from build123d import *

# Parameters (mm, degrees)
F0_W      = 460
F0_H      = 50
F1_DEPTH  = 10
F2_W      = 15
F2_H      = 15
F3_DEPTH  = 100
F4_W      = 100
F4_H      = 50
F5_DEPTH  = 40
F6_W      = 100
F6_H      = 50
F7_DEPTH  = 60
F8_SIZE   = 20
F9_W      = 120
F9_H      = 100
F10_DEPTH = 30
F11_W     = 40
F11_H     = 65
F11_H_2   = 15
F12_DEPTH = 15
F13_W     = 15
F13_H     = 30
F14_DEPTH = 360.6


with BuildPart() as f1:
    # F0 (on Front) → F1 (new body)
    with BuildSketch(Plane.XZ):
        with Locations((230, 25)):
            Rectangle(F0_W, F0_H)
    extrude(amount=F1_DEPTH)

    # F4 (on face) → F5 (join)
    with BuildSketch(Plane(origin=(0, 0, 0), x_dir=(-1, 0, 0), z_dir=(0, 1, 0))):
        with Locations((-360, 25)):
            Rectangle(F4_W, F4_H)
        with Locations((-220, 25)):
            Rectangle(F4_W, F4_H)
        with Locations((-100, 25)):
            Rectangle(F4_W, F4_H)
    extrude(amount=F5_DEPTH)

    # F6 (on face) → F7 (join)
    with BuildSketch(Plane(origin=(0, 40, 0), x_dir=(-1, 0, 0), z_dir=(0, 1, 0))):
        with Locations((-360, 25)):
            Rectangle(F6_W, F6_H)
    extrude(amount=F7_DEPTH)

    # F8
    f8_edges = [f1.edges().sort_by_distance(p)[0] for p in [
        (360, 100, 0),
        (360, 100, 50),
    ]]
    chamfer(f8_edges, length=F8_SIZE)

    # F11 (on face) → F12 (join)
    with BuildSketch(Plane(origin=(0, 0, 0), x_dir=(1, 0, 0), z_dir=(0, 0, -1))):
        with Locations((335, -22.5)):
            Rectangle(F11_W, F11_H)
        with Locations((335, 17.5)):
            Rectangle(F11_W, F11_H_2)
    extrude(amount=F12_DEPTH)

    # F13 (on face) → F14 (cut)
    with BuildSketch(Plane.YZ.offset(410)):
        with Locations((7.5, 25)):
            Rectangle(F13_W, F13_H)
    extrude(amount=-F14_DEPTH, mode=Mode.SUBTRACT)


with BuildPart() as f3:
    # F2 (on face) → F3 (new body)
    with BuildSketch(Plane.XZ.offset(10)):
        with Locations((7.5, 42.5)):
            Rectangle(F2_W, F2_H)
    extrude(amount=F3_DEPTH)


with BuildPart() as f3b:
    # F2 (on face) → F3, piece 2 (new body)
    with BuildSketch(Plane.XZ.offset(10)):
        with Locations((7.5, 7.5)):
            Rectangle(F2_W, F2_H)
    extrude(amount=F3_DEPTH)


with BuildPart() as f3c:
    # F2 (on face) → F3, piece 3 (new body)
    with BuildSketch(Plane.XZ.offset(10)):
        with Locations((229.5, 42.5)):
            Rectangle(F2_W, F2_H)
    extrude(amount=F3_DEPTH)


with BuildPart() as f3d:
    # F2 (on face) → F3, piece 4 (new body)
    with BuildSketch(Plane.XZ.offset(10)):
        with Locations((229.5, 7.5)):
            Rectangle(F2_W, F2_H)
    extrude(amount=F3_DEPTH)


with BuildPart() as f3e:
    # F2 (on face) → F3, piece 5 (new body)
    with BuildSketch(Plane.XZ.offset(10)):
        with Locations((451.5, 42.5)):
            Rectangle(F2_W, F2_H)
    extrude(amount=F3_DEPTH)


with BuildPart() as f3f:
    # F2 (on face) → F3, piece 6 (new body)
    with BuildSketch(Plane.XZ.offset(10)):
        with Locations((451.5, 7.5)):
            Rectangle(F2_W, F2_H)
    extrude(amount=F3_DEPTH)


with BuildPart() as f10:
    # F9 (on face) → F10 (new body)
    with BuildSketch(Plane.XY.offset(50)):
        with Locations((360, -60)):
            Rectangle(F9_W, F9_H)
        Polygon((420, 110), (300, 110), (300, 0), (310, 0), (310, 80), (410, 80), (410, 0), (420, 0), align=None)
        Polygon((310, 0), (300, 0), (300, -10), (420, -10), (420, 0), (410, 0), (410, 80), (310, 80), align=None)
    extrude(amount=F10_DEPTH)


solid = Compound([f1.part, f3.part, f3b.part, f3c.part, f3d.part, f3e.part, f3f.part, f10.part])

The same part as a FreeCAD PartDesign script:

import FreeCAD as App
import Part
import Sketcher
Q = App.Units.Quantity


def edges_at(feature, points):
    """Names of the edges that pass closest to the given points."""
    edges = feature.Shape.Edges
    near = lambda p: min(range(len(edges)), key=lambda i: edges[i].distToShape(Part.Vertex(*p))[0])
    return sorted({f"Edge{near(p) + 1}" for p in points})

doc = App.newDocument("Part")
body = doc.addObject("PartDesign::Body", "Body")

# Sketch on XZ plane
sketch1 = doc.addObject("Sketcher::SketchObject", "Sketch")
body.addObject(sketch1)
sketch1.AttachmentSupport = (doc.XZ_Plane, [""])
sketch1.MapMode = "FlatFace"
sketch1.addGeometry(Part.LineSegment(App.Vector(0, 50, 0), App.Vector(0, 0, 0)), False)
sketch1.addGeometry(Part.LineSegment(App.Vector(0, 0, 0), App.Vector(460, 0, 0)), False)
sketch1.addGeometry(Part.LineSegment(App.Vector(460, 0, 0), App.Vector(460, 50, 0)), False)
sketch1.addGeometry(Part.LineSegment(App.Vector(460, 50, 0), App.Vector(0, 50, 0)), False)
sketch1.addConstraint(Sketcher.Constraint("Coincident", 0, 2, 1, 1))
sketch1.addConstraint(Sketcher.Constraint("Coincident", 1, 2, 2, 1))
sketch1.addConstraint(Sketcher.Constraint("Coincident", 2, 2, 3, 1))
sketch1.addConstraint(Sketcher.Constraint("Coincident", 3, 2, 0, 1))
sketch1.addConstraint(Sketcher.Constraint("Vertical", 0))
sketch1.addConstraint(Sketcher.Constraint("Horizontal", 1))
sketch1.addConstraint(Sketcher.Constraint("Vertical", 2))
sketch1.addConstraint(Sketcher.Constraint("Horizontal", 3))
sketch1.addConstraint(Sketcher.Constraint("Coincident", 0, 2, -1, 1))
sketch1.addConstraint(Sketcher.Constraint("DistanceX", 1, 1, 1, 2, Q("460 mm")))
sketch1.addConstraint(Sketcher.Constraint("DistanceY", 0, 2, 0, 1, Q("50 mm")))
pad1 = doc.addObject("PartDesign::Pad", "Pad")
body.addObject(pad1)
pad1.Profile = sketch1
pad1.Length = 10

# Sketch on XZ plane
sketch2 = doc.addObject("Sketcher::SketchObject", "Sketch001")
body.addObject(sketch2)
sketch2.AttachmentSupport = (doc.XZ_Plane, [""])
sketch2.MapMode = "FlatFace"
sketch2.addGeometry(Part.LineSegment(App.Vector(410, 50, 0), App.Vector(410, 0, 0)), False)
sketch2.addGeometry(Part.LineSegment(App.Vector(410, 0, 0), App.Vector(310, 0, 0)), False)
sketch2.addGeometry(Part.LineSegment(App.Vector(310, 0, 0), App.Vector(310, 50, 0)), False)
sketch2.addGeometry(Part.LineSegment(App.Vector(310, 50, 0), App.Vector(410, 50, 0)), False)
sketch2.addGeometry(Part.LineSegment(App.Vector(270, 50, 0), App.Vector(270, 0, 0)), False)
sketch2.addGeometry(Part.LineSegment(App.Vector(270, 0, 0), App.Vector(170, 0, 0)), False)
sketch2.addGeometry(Part.LineSegment(App.Vector(170, 0, 0), App.Vector(170, 50, 0)), False)
sketch2.addGeometry(Part.LineSegment(App.Vector(170, 50, 0), App.Vector(270, 50, 0)), False)
sketch2.addGeometry(Part.LineSegment(App.Vector(150, 50, 0), App.Vector(150, 0, 0)), False)
sketch2.addGeometry(Part.LineSegment(App.Vector(150, 0, 0), App.Vector(50, 0, 0)), False)
sketch2.addGeometry(Part.LineSegment(App.Vector(50, 0, 0), App.Vector(50, 50, 0)), False)
sketch2.addGeometry(Part.LineSegment(App.Vector(50, 50, 0), App.Vector(150, 50, 0)), False)
sketch2.addConstraint(Sketcher.Constraint("Coincident", 0, 2, 1, 1))
sketch2.addConstraint(Sketcher.Constraint("Coincident", 1, 2, 2, 1))
sketch2.addConstraint(Sketcher.Constraint("Coincident", 2, 2, 3, 1))
sketch2.addConstraint(Sketcher.Constraint("Coincident", 3, 2, 0, 1))
sketch2.addConstraint(Sketcher.Constraint("Coincident", 4, 2, 5, 1))
sketch2.addConstraint(Sketcher.Constraint("Coincident", 5, 2, 6, 1))
sketch2.addConstraint(Sketcher.Constraint("Coincident", 6, 2, 7, 1))
sketch2.addConstraint(Sketcher.Constraint("Coincident", 7, 2, 4, 1))
sketch2.addConstraint(Sketcher.Constraint("Coincident", 8, 2, 9, 1))
sketch2.addConstraint(Sketcher.Constraint("Coincident", 9, 2, 10, 1))
sketch2.addConstraint(Sketcher.Constraint("Coincident", 10, 2, 11, 1))
sketch2.addConstraint(Sketcher.Constraint("Coincident", 11, 2, 8, 1))
sketch2.addConstraint(Sketcher.Constraint("Vertical", 0))
sketch2.addConstraint(Sketcher.Constraint("Horizontal", 1))
sketch2.addConstraint(Sketcher.Constraint("Vertical", 2))
sketch2.addConstraint(Sketcher.Constraint("Horizontal", 3))
sketch2.addConstraint(Sketcher.Constraint("Vertical", 4))
sketch2.addConstraint(Sketcher.Constraint("Horizontal", 5))
sketch2.addConstraint(Sketcher.Constraint("Vertical", 6))
sketch2.addConstraint(Sketcher.Constraint("Horizontal", 7))
sketch2.addConstraint(Sketcher.Constraint("Vertical", 8))
sketch2.addConstraint(Sketcher.Constraint("Horizontal", 9))
sketch2.addConstraint(Sketcher.Constraint("Vertical", 10))
sketch2.addConstraint(Sketcher.Constraint("Horizontal", 11))
sketch2.addConstraint(Sketcher.Constraint("PointOnObject", 0, 2, -1))
sketch2.addConstraint(Sketcher.Constraint("PointOnObject", 4, 2, -1))
sketch2.addConstraint(Sketcher.Constraint("PointOnObject", 8, 2, -1))
sketch2.addConstraint(Sketcher.Constraint("Horizontal", 3, 2, 6, 2))
sketch2.addConstraint(Sketcher.Constraint("Horizontal", 7, 2, 10, 2))
sketch2.addConstraint(Sketcher.Constraint("Equal", 3, 5))
sketch2.addConstraint(Sketcher.Constraint("Equal", 7, 9))
sketch2.addConstraint(Sketcher.Constraint("DistanceX", 1, 2, 1, 1, Q("100 mm")))
sketch2.addConstraint(Sketcher.Constraint("DistanceY", 0, 2, 0, 1, Q("50 mm")))
sketch2.addConstraint(Sketcher.Constraint("DistanceX", -1, 1, 0, 2, Q("410 mm")))
sketch2.addConstraint(Sketcher.Constraint("DistanceX", -1, 1, 4, 2, Q("270 mm")))
sketch2.addConstraint(Sketcher.Constraint("DistanceX", -1, 1, 8, 2, Q("150 mm")))
pad2 = doc.addObject("PartDesign::Pad", "Pad001")
body.addObject(pad2)
pad2.Profile = sketch2
pad2.Length = 40
pad2.Reversed = True

# Sketch on XZ plane
sketch3 = doc.addObject("Sketcher::SketchObject", "Sketch002")
body.addObject(sketch3)
sketch3.AttachmentSupport = (doc.XZ_Plane, [""])
sketch3.MapMode = "FlatFace"
sketch3.AttachmentOffset = App.Placement(App.Vector(0, 0, -40), App.Rotation())
sketch3.addGeometry(Part.LineSegment(App.Vector(410, 50, 0), App.Vector(410, 0, 0)), False)
sketch3.addGeometry(Part.LineSegment(App.Vector(410, 0, 0), App.Vector(310, 0, 0)), False)
sketch3.addGeometry(Part.LineSegment(App.Vector(310, 0, 0), App.Vector(310, 50, 0)), False)
sketch3.addGeometry(Part.LineSegment(App.Vector(310, 50, 0), App.Vector(410, 50, 0)), False)
sketch3.addConstraint(Sketcher.Constraint("Coincident", 0, 2, 1, 1))
sketch3.addConstraint(Sketcher.Constraint("Coincident", 1, 2, 2, 1))
sketch3.addConstraint(Sketcher.Constraint("Coincident", 2, 2, 3, 1))
sketch3.addConstraint(Sketcher.Constraint("Coincident", 3, 2, 0, 1))
sketch3.addConstraint(Sketcher.Constraint("Vertical", 0))
sketch3.addConstraint(Sketcher.Constraint("Horizontal", 1))
sketch3.addConstraint(Sketcher.Constraint("Vertical", 2))
sketch3.addConstraint(Sketcher.Constraint("Horizontal", 3))
sketch3.addConstraint(Sketcher.Constraint("PointOnObject", 0, 2, -1))
sketch3.addConstraint(Sketcher.Constraint("DistanceX", 1, 2, 1, 1, Q("100 mm")))
sketch3.addConstraint(Sketcher.Constraint("DistanceY", 0, 2, 0, 1, Q("50 mm")))
sketch3.addConstraint(Sketcher.Constraint("DistanceX", -1, 1, 0, 2, Q("410 mm")))
pad3 = doc.addObject("PartDesign::Pad", "Pad002")
body.addObject(pad3)
pad3.Profile = sketch3
pad3.Length = 60
pad3.Reversed = True
doc.recompute()

chamfer = doc.addObject("PartDesign::Chamfer", "Chamfer")
body.addObject(chamfer)
chamfer.Base = (pad3, edges_at(pad3, [(360, 100, 0), (360, 100, 50)]))
chamfer.Size = 20

# Sketch on XY plane
sketch4 = doc.addObject("Sketcher::SketchObject", "Sketch003")
body.addObject(sketch4)
sketch4.AttachmentSupport = (doc.XY_Plane, [""])
sketch4.MapMode = "FlatFace"
sketch4.addGeometry(Part.LineSegment(App.Vector(315, 55, 0), App.Vector(355, 55, 0)), False)
sketch4.addGeometry(Part.LineSegment(App.Vector(355, 55, 0), App.Vector(355, -25, 0)), False)
sketch4.addGeometry(Part.LineSegment(App.Vector(355, -25, 0), App.Vector(315, -25, 0)), False)
sketch4.addGeometry(Part.LineSegment(App.Vector(315, -25, 0), App.Vector(315, 55, 0)), False)
sketch4.addConstraint(Sketcher.Constraint("Coincident", 0, 2, 1, 1))
sketch4.addConstraint(Sketcher.Constraint("Coincident", 1, 2, 2, 1))
sketch4.addConstraint(Sketcher.Constraint("Coincident", 2, 2, 3, 1))
sketch4.addConstraint(Sketcher.Constraint("Coincident", 3, 2, 0, 1))
sketch4.addConstraint(Sketcher.Constraint("Horizontal", 0))
sketch4.addConstraint(Sketcher.Constraint("Vertical", 1))
sketch4.addConstraint(Sketcher.Constraint("Horizontal", 2))
sketch4.addConstraint(Sketcher.Constraint("Vertical", 3))
sketch4.addConstraint(Sketcher.Constraint("DistanceX", 0, 1, 0, 2, Q("40 mm")))
sketch4.addConstraint(Sketcher.Constraint("DistanceY", 1, 2, 1, 1, Q("80 mm")))
sketch4.addConstraint(Sketcher.Constraint("DistanceX", -1, 1, 0, 2, Q("355 mm")))
sketch4.addConstraint(Sketcher.Constraint("DistanceY", -1, 1, 0, 2, Q("55 mm")))
pad4 = doc.addObject("PartDesign::Pad", "Pad003")
body.addObject(pad4)
pad4.Profile = sketch4
pad4.Length = 15
pad4.Reversed = True

# Sketch on YZ plane
sketch5 = doc.addObject("Sketcher::SketchObject", "Sketch004")
body.addObject(sketch5)
sketch5.AttachmentSupport = (doc.YZ_Plane, [""])
sketch5.MapMode = "FlatFace"
sketch5.AttachmentOffset = App.Placement(App.Vector(0, 0, 410), App.Rotation())
sketch5.addGeometry(Part.LineSegment(App.Vector(0, 40, 0), App.Vector(0, 10, 0)), False)
sketch5.addGeometry(Part.LineSegment(App.Vector(0, 10, 0), App.Vector(15, 10, 0)), False)
sketch5.addGeometry(Part.LineSegment(App.Vector(15, 10, 0), App.Vector(15, 40, 0)), False)
sketch5.addGeometry(Part.LineSegment(App.Vector(15, 40, 0), App.Vector(0, 40, 0)), False)
sketch5.addConstraint(Sketcher.Constraint("Coincident", 0, 2, 1, 1))
sketch5.addConstraint(Sketcher.Constraint("Coincident", 1, 2, 2, 1))
sketch5.addConstraint(Sketcher.Constraint("Coincident", 2, 2, 3, 1))
sketch5.addConstraint(Sketcher.Constraint("Coincident", 3, 2, 0, 1))
sketch5.addConstraint(Sketcher.Constraint("Vertical", 0))
sketch5.addConstraint(Sketcher.Constraint("Horizontal", 1))
sketch5.addConstraint(Sketcher.Constraint("Vertical", 2))
sketch5.addConstraint(Sketcher.Constraint("Horizontal", 3))
sketch5.addConstraint(Sketcher.Constraint("PointOnObject", 0, 2, -2))
sketch5.addConstraint(Sketcher.Constraint("DistanceX", 1, 1, 1, 2, Q("15 mm")))
sketch5.addConstraint(Sketcher.Constraint("DistanceY", 0, 2, 0, 1, Q("30 mm")))
sketch5.addConstraint(Sketcher.Constraint("DistanceY", -1, 1, 0, 2, Q("10 mm")))
pocket1 = doc.addObject("PartDesign::Pocket", "Pocket")
body.addObject(pocket1)
pocket1.Profile = sketch5
pocket1.Length = 360.6
body2 = doc.addObject("PartDesign::Body", "Body001")

# Sketch on XZ plane
sketch6 = doc.addObject("Sketcher::SketchObject", "Sketch005")
body2.addObject(sketch6)
sketch6.AttachmentSupport = (doc.getObject("XZ_Plane001"), [""])
sketch6.MapMode = "FlatFace"
sketch6.AttachmentOffset = App.Placement(App.Vector(0, 0, 10), App.Rotation())
sketch6.addGeometry(Part.LineSegment(App.Vector(0, 50, 0), App.Vector(0, 35, 0)), False)
sketch6.addGeometry(Part.LineSegment(App.Vector(0, 35, 0), App.Vector(15, 35, 0)), False)
sketch6.addGeometry(Part.LineSegment(App.Vector(15, 35, 0), App.Vector(15, 50, 0)), False)
sketch6.addGeometry(Part.LineSegment(App.Vector(15, 50, 0), App.Vector(0, 50, 0)), False)
sketch6.addConstraint(Sketcher.Constraint("Coincident", 0, 2, 1, 1))
sketch6.addConstraint(Sketcher.Constraint("Coincident", 1, 2, 2, 1))
sketch6.addConstraint(Sketcher.Constraint("Coincident", 2, 2, 3, 1))
sketch6.addConstraint(Sketcher.Constraint("Coincident", 3, 2, 0, 1))
sketch6.addConstraint(Sketcher.Constraint("Vertical", 0))
sketch6.addConstraint(Sketcher.Constraint("Horizontal", 1))
sketch6.addConstraint(Sketcher.Constraint("Vertical", 2))
sketch6.addConstraint(Sketcher.Constraint("Horizontal", 3))
sketch6.addConstraint(Sketcher.Constraint("PointOnObject", 0, 2, -2))
sketch6.addConstraint(Sketcher.Constraint("Equal", 3, 0))
sketch6.addConstraint(Sketcher.Constraint("DistanceX", 1, 1, 1, 2, Q("15 mm")))
sketch6.addConstraint(Sketcher.Constraint("DistanceY", -1, 1, 0, 2, Q("35 mm")))
pad5 = doc.addObject("PartDesign::Pad", "Pad004")
body2.addObject(pad5)
pad5.Profile = sketch6
pad5.Length = 100
body3 = doc.addObject("PartDesign::Body", "Body002")

# Sketch on XZ plane
sketch7 = doc.addObject("Sketcher::SketchObject", "Sketch006")
body3.addObject(sketch7)
sketch7.AttachmentSupport = (doc.getObject("XZ_Plane002"), [""])
sketch7.MapMode = "FlatFace"
sketch7.AttachmentOffset = App.Placement(App.Vector(0, 0, 10), App.Rotation())
sketch7.addGeometry(Part.LineSegment(App.Vector(0, 15, 0), App.Vector(0, 0, 0)), False)
sketch7.addGeometry(Part.LineSegment(App.Vector(0, 0, 0), App.Vector(15, 0, 0)), False)
sketch7.addGeometry(Part.LineSegment(App.Vector(15, 0, 0), App.Vector(15, 15, 0)), False)
sketch7.addGeometry(Part.LineSegment(App.Vector(15, 15, 0), App.Vector(0, 15, 0)), False)
sketch7.addConstraint(Sketcher.Constraint("Coincident", 0, 2, 1, 1))
sketch7.addConstraint(Sketcher.Constraint("Coincident", 1, 2, 2, 1))
sketch7.addConstraint(Sketcher.Constraint("Coincident", 2, 2, 3, 1))
sketch7.addConstraint(Sketcher.Constraint("Coincident", 3, 2, 0, 1))
sketch7.addConstraint(Sketcher.Constraint("Vertical", 0))
sketch7.addConstraint(Sketcher.Constraint("Horizontal", 1))
sketch7.addConstraint(Sketcher.Constraint("Vertical", 2))
sketch7.addConstraint(Sketcher.Constraint("Horizontal", 3))
sketch7.addConstraint(Sketcher.Constraint("Coincident", 0, 2, -1, 1))
sketch7.addConstraint(Sketcher.Constraint("Equal", 3, 0))
sketch7.addConstraint(Sketcher.Constraint("DistanceX", 1, 1, 1, 2, Q("15 mm")))
pad6 = doc.addObject("PartDesign::Pad", "Pad005")
body3.addObject(pad6)
pad6.Profile = sketch7
pad6.Length = 100
body4 = doc.addObject("PartDesign::Body", "Body003")

# Sketch on XZ plane
sketch8 = doc.addObject("Sketcher::SketchObject", "Sketch007")
body4.addObject(sketch8)
sketch8.AttachmentSupport = (doc.getObject("XZ_Plane003"), [""])
sketch8.MapMode = "FlatFace"
sketch8.AttachmentOffset = App.Placement(App.Vector(0, 0, 10), App.Rotation())
sketch8.addGeometry(Part.LineSegment(App.Vector(222, 50, 0), App.Vector(222, 35, 0)), False)
sketch8.addGeometry(Part.LineSegment(App.Vector(222, 35, 0), App.Vector(237, 35, 0)), False)
sketch8.addGeometry(Part.LineSegment(App.Vector(237, 35, 0), App.Vector(237, 50, 0)), False)
sketch8.addGeometry(Part.LineSegment(App.Vector(237, 50, 0), App.Vector(222, 50, 0)), False)
sketch8.addConstraint(Sketcher.Constraint("Coincident", 0, 2, 1, 1))
sketch8.addConstraint(Sketcher.Constraint("Coincident", 1, 2, 2, 1))
sketch8.addConstraint(Sketcher.Constraint("Coincident", 2, 2, 3, 1))
sketch8.addConstraint(Sketcher.Constraint("Coincident", 3, 2, 0, 1))
sketch8.addConstraint(Sketcher.Constraint("Vertical", 0))
sketch8.addConstraint(Sketcher.Constraint("Horizontal", 1))
sketch8.addConstraint(Sketcher.Constraint("Vertical", 2))
sketch8.addConstraint(Sketcher.Constraint("Horizontal", 3))
sketch8.addConstraint(Sketcher.Constraint("Equal", 3, 0))
sketch8.addConstraint(Sketcher.Constraint("DistanceX", 1, 1, 1, 2, Q("15 mm")))
sketch8.addConstraint(Sketcher.Constraint("DistanceX", -1, 1, 0, 2, Q("222 mm")))
sketch8.addConstraint(Sketcher.Constraint("DistanceY", -1, 1, 0, 2, Q("35 mm")))
pad7 = doc.addObject("PartDesign::Pad", "Pad006")
body4.addObject(pad7)
pad7.Profile = sketch8
pad7.Length = 100
body5 = doc.addObject("PartDesign::Body", "Body004")

# Sketch on XZ plane
sketch9 = doc.addObject("Sketcher::SketchObject", "Sketch008")
body5.addObject(sketch9)
sketch9.AttachmentSupport = (doc.getObject("XZ_Plane004"), [""])
sketch9.MapMode = "FlatFace"
sketch9.AttachmentOffset = App.Placement(App.Vector(0, 0, 10), App.Rotation())
sketch9.addGeometry(Part.LineSegment(App.Vector(222, 15, 0), App.Vector(222, 0, 0)), False)
sketch9.addGeometry(Part.LineSegment(App.Vector(222, 0, 0), App.Vector(237, 0, 0)), False)
sketch9.addGeometry(Part.LineSegment(App.Vector(237, 0, 0), App.Vector(237, 15, 0)), False)
sketch9.addGeometry(Part.LineSegment(App.Vector(237, 15, 0), App.Vector(222, 15, 0)), False)
sketch9.addConstraint(Sketcher.Constraint("Coincident", 0, 2, 1, 1))
sketch9.addConstraint(Sketcher.Constraint("Coincident", 1, 2, 2, 1))
sketch9.addConstraint(Sketcher.Constraint("Coincident", 2, 2, 3, 1))
sketch9.addConstraint(Sketcher.Constraint("Coincident", 3, 2, 0, 1))
sketch9.addConstraint(Sketcher.Constraint("Vertical", 0))
sketch9.addConstraint(Sketcher.Constraint("Horizontal", 1))
sketch9.addConstraint(Sketcher.Constraint("Vertical", 2))
sketch9.addConstraint(Sketcher.Constraint("Horizontal", 3))
sketch9.addConstraint(Sketcher.Constraint("PointOnObject", 0, 2, -1))
sketch9.addConstraint(Sketcher.Constraint("Equal", 3, 0))
sketch9.addConstraint(Sketcher.Constraint("DistanceX", 1, 1, 1, 2, Q("15 mm")))
sketch9.addConstraint(Sketcher.Constraint("DistanceX", -1, 1, 0, 2, Q("222 mm")))
pad8 = doc.addObject("PartDesign::Pad", "Pad007")
body5.addObject(pad8)
pad8.Profile = sketch9
pad8.Length = 100
body6 = doc.addObject("PartDesign::Body", "Body005")

# Sketch on XZ plane
sketch10 = doc.addObject("Sketcher::SketchObject", "Sketch009")
body6.addObject(sketch10)
sketch10.AttachmentSupport = (doc.getObject("XZ_Plane005"), [""])
sketch10.MapMode = "FlatFace"
sketch10.AttachmentOffset = App.Placement(App.Vector(0, 0, 10), App.Rotation())
sketch10.addGeometry(Part.LineSegment(App.Vector(444, 50, 0), App.Vector(444, 35, 0)), False)
sketch10.addGeometry(Part.LineSegment(App.Vector(444, 35, 0), App.Vector(459, 35, 0)), False)
sketch10.addGeometry(Part.LineSegment(App.Vector(459, 35, 0), App.Vector(459, 50, 0)), False)
sketch10.addGeometry(Part.LineSegment(App.Vector(459, 50, 0), App.Vector(444, 50, 0)), False)
sketch10.addConstraint(Sketcher.Constraint("Coincident", 0, 2, 1, 1))
sketch10.addConstraint(Sketcher.Constraint("Coincident", 1, 2, 2, 1))
sketch10.addConstraint(Sketcher.Constraint("Coincident", 2, 2, 3, 1))
sketch10.addConstraint(Sketcher.Constraint("Coincident", 3, 2, 0, 1))
sketch10.addConstraint(Sketcher.Constraint("Vertical", 0))
sketch10.addConstraint(Sketcher.Constraint("Horizontal", 1))
sketch10.addConstraint(Sketcher.Constraint("Vertical", 2))
sketch10.addConstraint(Sketcher.Constraint("Horizontal", 3))
sketch10.addConstraint(Sketcher.Constraint("Equal", 3, 0))
sketch10.addConstraint(Sketcher.Constraint("DistanceX", 1, 1, 1, 2, Q("15 mm")))
sketch10.addConstraint(Sketcher.Constraint("DistanceX", -1, 1, 0, 2, Q("444 mm")))
sketch10.addConstraint(Sketcher.Constraint("DistanceY", -1, 1, 0, 2, Q("35 mm")))
pad9 = doc.addObject("PartDesign::Pad", "Pad008")
body6.addObject(pad9)
pad9.Profile = sketch10
pad9.Length = 100
body7 = doc.addObject("PartDesign::Body", "Body006")

# Sketch on XZ plane
sketch11 = doc.addObject("Sketcher::SketchObject", "Sketch010")
body7.addObject(sketch11)
sketch11.AttachmentSupport = (doc.getObject("XZ_Plane006"), [""])
sketch11.MapMode = "FlatFace"
sketch11.AttachmentOffset = App.Placement(App.Vector(0, 0, 10), App.Rotation())
sketch11.addGeometry(Part.LineSegment(App.Vector(444, 15, 0), App.Vector(444, 0, 0)), False)
sketch11.addGeometry(Part.LineSegment(App.Vector(444, 0, 0), App.Vector(459, 0, 0)), False)
sketch11.addGeometry(Part.LineSegment(App.Vector(459, 0, 0), App.Vector(459, 15, 0)), False)
sketch11.addGeometry(Part.LineSegment(App.Vector(459, 15, 0), App.Vector(444, 15, 0)), False)
sketch11.addConstraint(Sketcher.Constraint("Coincident", 0, 2, 1, 1))
sketch11.addConstraint(Sketcher.Constraint("Coincident", 1, 2, 2, 1))
sketch11.addConstraint(Sketcher.Constraint("Coincident", 2, 2, 3, 1))
sketch11.addConstraint(Sketcher.Constraint("Coincident", 3, 2, 0, 1))
sketch11.addConstraint(Sketcher.Constraint("Vertical", 0))
sketch11.addConstraint(Sketcher.Constraint("Horizontal", 1))
sketch11.addConstraint(Sketcher.Constraint("Vertical", 2))
sketch11.addConstraint(Sketcher.Constraint("Horizontal", 3))
sketch11.addConstraint(Sketcher.Constraint("PointOnObject", 0, 2, -1))
sketch11.addConstraint(Sketcher.Constraint("Equal", 3, 0))
sketch11.addConstraint(Sketcher.Constraint("DistanceX", 1, 1, 1, 2, Q("15 mm")))
sketch11.addConstraint(Sketcher.Constraint("DistanceX", -1, 1, 0, 2, Q("444 mm")))
pad10 = doc.addObject("PartDesign::Pad", "Pad009")
body7.addObject(pad10)
pad10.Profile = sketch11
pad10.Length = 100
body8 = doc.addObject("PartDesign::Body", "Body007")

# Sketch on XY plane
sketch12 = doc.addObject("Sketcher::SketchObject", "Sketch011")
body8.addObject(sketch12)
sketch12.AttachmentSupport = (doc.getObject("XY_Plane007"), [""])
sketch12.MapMode = "FlatFace"
sketch12.AttachmentOffset = App.Placement(App.Vector(0, 0, 50), App.Rotation())
sketch12.addGeometry(Part.LineSegment(App.Vector(300, -110, 0), App.Vector(420, -110, 0)), False)
sketch12.addGeometry(Part.LineSegment(App.Vector(420, -110, 0), App.Vector(420, 110, 0)), False)
sketch12.addGeometry(Part.LineSegment(App.Vector(420, 110, 0), App.Vector(300, 110, 0)), False)
sketch12.addGeometry(Part.LineSegment(App.Vector(300, 110, 0), App.Vector(300, -110, 0)), False)
sketch12.addConstraint(Sketcher.Constraint("Coincident", 0, 2, 1, 1))
sketch12.addConstraint(Sketcher.Constraint("Coincident", 1, 2, 2, 1))
sketch12.addConstraint(Sketcher.Constraint("Coincident", 2, 2, 3, 1))
sketch12.addConstraint(Sketcher.Constraint("Coincident", 3, 2, 0, 1))
sketch12.addConstraint(Sketcher.Constraint("Horizontal", 0))
sketch12.addConstraint(Sketcher.Constraint("Vertical", 1))
sketch12.addConstraint(Sketcher.Constraint("Horizontal", 2))
sketch12.addConstraint(Sketcher.Constraint("Vertical", 3))
sketch12.addConstraint(Sketcher.Constraint("DistanceX", 0, 1, 0, 2, Q("120 mm")))
sketch12.addConstraint(Sketcher.Constraint("DistanceY", 1, 1, 1, 2, Q("220 mm")))
sketch12.addConstraint(Sketcher.Constraint("DistanceX", -1, 1, 0, 2, Q("420 mm")))
sketch12.addConstraint(Sketcher.Constraint("DistanceY", 0, 2, -1, 1, Q("110 mm")))
pad11 = doc.addObject("PartDesign::Pad", "Pad010")
body8.addObject(pad11)
pad11.Profile = sketch12
pad11.Length = 30

doc.recompute()
